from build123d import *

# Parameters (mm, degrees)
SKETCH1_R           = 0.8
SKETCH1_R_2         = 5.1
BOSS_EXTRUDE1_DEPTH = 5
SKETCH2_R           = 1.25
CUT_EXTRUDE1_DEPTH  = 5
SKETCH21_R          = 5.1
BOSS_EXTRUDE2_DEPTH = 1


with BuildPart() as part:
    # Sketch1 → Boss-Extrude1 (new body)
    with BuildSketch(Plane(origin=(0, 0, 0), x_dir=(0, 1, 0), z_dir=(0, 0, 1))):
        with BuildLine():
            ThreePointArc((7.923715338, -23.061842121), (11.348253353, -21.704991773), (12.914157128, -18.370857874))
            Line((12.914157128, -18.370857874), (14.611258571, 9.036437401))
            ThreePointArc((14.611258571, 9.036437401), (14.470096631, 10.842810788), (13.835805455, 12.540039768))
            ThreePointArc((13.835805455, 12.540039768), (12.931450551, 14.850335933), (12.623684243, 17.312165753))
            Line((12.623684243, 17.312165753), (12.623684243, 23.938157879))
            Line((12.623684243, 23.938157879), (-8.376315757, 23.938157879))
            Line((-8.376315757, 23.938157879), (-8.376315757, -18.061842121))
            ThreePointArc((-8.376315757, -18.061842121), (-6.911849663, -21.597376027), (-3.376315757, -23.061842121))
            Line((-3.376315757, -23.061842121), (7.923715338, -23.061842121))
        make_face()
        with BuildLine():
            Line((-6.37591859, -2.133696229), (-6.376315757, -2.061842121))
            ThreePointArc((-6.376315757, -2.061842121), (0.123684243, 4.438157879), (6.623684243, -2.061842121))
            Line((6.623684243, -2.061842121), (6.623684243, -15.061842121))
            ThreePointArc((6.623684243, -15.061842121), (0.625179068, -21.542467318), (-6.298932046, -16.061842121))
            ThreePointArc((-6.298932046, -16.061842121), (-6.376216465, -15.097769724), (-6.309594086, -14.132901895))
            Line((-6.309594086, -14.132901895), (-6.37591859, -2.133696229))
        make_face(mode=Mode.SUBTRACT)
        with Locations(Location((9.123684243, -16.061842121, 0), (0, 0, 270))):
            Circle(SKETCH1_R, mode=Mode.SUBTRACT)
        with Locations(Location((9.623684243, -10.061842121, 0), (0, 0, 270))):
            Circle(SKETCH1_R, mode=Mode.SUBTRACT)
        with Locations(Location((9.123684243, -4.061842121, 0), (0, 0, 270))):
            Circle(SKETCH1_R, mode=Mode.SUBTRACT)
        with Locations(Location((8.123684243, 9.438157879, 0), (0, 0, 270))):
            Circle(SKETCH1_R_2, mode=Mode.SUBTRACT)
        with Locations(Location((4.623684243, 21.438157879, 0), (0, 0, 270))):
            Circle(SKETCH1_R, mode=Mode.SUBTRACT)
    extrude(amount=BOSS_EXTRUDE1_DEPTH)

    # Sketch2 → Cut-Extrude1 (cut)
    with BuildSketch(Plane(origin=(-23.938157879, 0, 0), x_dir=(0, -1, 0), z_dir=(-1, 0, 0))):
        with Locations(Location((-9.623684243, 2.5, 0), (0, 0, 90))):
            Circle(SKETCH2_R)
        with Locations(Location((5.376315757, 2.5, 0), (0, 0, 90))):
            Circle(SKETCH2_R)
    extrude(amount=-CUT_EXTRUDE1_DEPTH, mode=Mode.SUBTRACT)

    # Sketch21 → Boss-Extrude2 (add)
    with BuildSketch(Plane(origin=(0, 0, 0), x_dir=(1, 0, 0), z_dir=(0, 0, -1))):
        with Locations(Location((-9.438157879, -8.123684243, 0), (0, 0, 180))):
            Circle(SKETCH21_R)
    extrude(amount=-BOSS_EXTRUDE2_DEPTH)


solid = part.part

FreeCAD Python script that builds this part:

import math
import FreeCAD as App
import Part
import Sketcher

V = App.Vector

doc = App.newDocument("Part")
params = doc.addObject("Spreadsheet::Sheet", "Params")
for row, (alias, value) in enumerate([
    ("sketch1_radius", "5 mm"),
    ("sketch1_radius2", "10 mm"),
    ("sketch1_diameter", "1.6 mm"),
    ("sketch1_diameter2", "10.2 mm"),
    ("sketch1_radius3", "6.5 mm"),
    ("pad1_length", "5 mm"),
    ("sketch2_diameter", "2.5 mm"),
    ("pocket1_length", "5 mm"),
    ("sketch3_diameter", "10.2 mm"),
    ("pad2_length", "1 mm"),
], start=1):
    params.set(f"A{row}", alias)
    params.set(f"B{row}", "=" + value)
    params.setAlias(f"B{row}", alias)

body = doc.addObject("PartDesign::Body", "Body")

# Sketch on XY plane
sketch1 = doc.addObject("Sketcher::SketchObject", "Sketch")
body.addObject(sketch1)
sketch1.AttachmentSupport = (doc.XY_Plane, [""])
sketch1.MapMode = "FlatFace"
sketch1.addGeometry([
    Part.ArcOfCircle(Part.Circle(V(18.061842, 7.923715, 0), V(0, 0, 1), 5), math.radians(0), math.radians(86.456682)),  # 0
    Part.LineSegment(V(18.370858, 12.914157, 0), V(-9.036437, 14.611259, 0)),  # 1
    Part.ArcOfCircle(Part.Circle(V(-9.438158, 8.123684, 0), V(0, 0, 1), 6.5), math.radians(86.456682), math.radians(118.50351)),  # 2
    Part.ArcOfCircle(Part.Circle(V(-17.312166, 22.623684, 0), V(0, 0, 1), 10), math.radians(-90), math.radians(-61.49649)),  # 3
    Part.LineSegment(V(-17.312166, 12.623684, 0), V(-23.938158, 12.623684, 0)),  # 4
    Part.LineSegment(V(-23.938158, 12.623684, 0), V(-23.938158, -8.376316, 0)),  # 5
    Part.LineSegment(V(-23.938158, -8.376316, 0), V(18.061842, -8.376316, 0)),  # 6
    Part.ArcOfCircle(Part.Circle(V(18.061842, -3.376316, 0), V(0, 0, 1), 5), math.radians(-90), math.radians(0)),  # 7
    Part.LineSegment(V(23.061842, -3.376316, 0), V(23.061842, 7.923715, 0)),  # 8
    Part.LineSegment(V(14.132902, -6.309594, 0), V(2.133696, -6.375919, 0)),  # 9
    Part.LineSegment(V(2.133696, -6.375919, 0), V(2.061842, -6.376316, 0)),  # 10
    Part.ArcOfCircle(Part.Circle(V(2.061842, 0.123684, 0), V(0, 0, 1), 6.5), math.radians(90), math.radians(270)),  # 11
    Part.LineSegment(V(2.061842, 6.623684, 0), V(15.061842, 6.623684, 0)),  # 12
    Part.ArcOfCircle(Part.Circle(V(15.061842, 0.123684, 0), V(0, 0, 1), 6.5), math.radians(-81.150117), math.radians(90)),  # 13
    Part.ArcOfCircle(Part.Circle(V(15.061842, 0.123684, 0), V(0, 0, 1), 6.5), math.radians(-98.216495), math.radians(-81.150117)),  # 14
    Part.Circle(V(16.061842, 9.123684, 0), V(0, 0, 1), 0.8),  # 15
    Part.Circle(V(10.061842, 9.623684, 0), V(0, 0, 1), 0.8),  # 16
    Part.Circle(V(4.061842, 9.123684, 0), V(0, 0, 1), 0.8),  # 17
    Part.Circle(V(-9.438158, 8.123684, 0), V(0, 0, 1), 5.1),  # 18
    Part.Circle(V(-21.438158, 4.623684, 0), V(0, 0, 1), 0.8),  # 19
], False)
sketch1.addConstraint([
    Sketcher.Constraint("Tangent", 0, 2, 1, 1),
    Sketcher.Constraint("Tangent", 1, 2, 2, 1),
    Sketcher.Constraint("Tangent", 2, 2, 3, 2),
    Sketcher.Constraint("Tangent", 3, 1, 4, 1),
    Sketcher.Constraint("Coincident", 4, 2, 5, 1),
    Sketcher.Constraint("Coincident", 5, 2, 6, 1),
    Sketcher.Constraint("Tangent", 6, 2, 7, 1),
    Sketcher.Constraint("Tangent", 7, 2, 8, 1),
    Sketcher.Constraint("Tangent", 8, 2, 0, 1),
    Sketcher.Constraint("Coincident", 9, 2, 10, 1),
    Sketcher.Constraint("Coincident", 10, 2, 11, 2),
    Sketcher.Constraint("Tangent", 11, 1, 12, 1),
    Sketcher.Constraint("Tangent", 12, 2, 13, 2),
    Sketcher.Constraint("Tangent", 13, 1, 14, 2),
    Sketcher.Constraint("Coincident", 14, 1, 9, 1),
    Sketcher.Constraint("Horizontal", 4),
    Sketcher.Constraint("Vertical", 5),
    Sketcher.Constraint("Horizontal", 6),
    Sketcher.Constraint("Vertical", 8),
    Sketcher.Constraint("Horizontal", 12),
    Sketcher.Constraint("Coincident", 18, 3, 2, 3),
    Sketcher.Constraint("Equal", 0, 7),
    Sketcher.Constraint("Equal", 2, 11),
    Sketcher.Constraint("Equal", 11, 13),
    Sketcher.Constraint("Equal", 13, 14),
    Sketcher.Constraint("Equal", 15, 16),
    Sketcher.Constraint("Equal", 16, 17),
    Sketcher.Constraint("Equal", 17, 19),
    Sketcher.Constraint("Parallel", 9, 10),
    Sketcher.Constraint("Horizontal", 15, 3, 17, 3),
    Sketcher.Constraint("Vertical", 11, 3, 10, 2),
    Sketcher.Constraint("Vertical", 15, 3, 13, 1),
    Sketcher.Constraint("Radius", 0, 5.0),
    Sketcher.Constraint("Radius", 3, 10.0),
    Sketcher.Constraint("Diameter", 15, 1.6),
    Sketcher.Constraint("Diameter", 18, 10.2),
    Sketcher.Constraint("Radius", 2, 6.5),
    Sketcher.Constraint("DistanceX", 6, 1, 6, 2, 42.0),
    Sketcher.Constraint("DistanceX", 12, 1, 12, 2, 13.0),
    Sketcher.Constraint("DistanceY", 5, 2, 5, 1, 21.0),
    Sketcher.Constraint("DistanceY", 11, 3, 2, 3, 8.0),
    Sketcher.Constraint("DistanceX", 11, 3, 7, 3, 16.0),
    Sketcher.Constraint("DistanceX", 15, 3, 0, 3, 2.0),
    Sketcher.Constraint("DistanceY", 13, 3, 15, 3, 9.0),
    Sketcher.Constraint("DistanceX", 16, 3, 15, 3, 6.0),
    Sketcher.Constraint("DistanceX", 17, 3, 16, 3, 6.0),
    Sketcher.Constraint("DistanceX", 19, 3, 18, 3, 12.0),
    Sketcher.Constraint("DistanceY", 19, 3, 3, 3, 18.0),
    Sketcher.Constraint("DistanceY", 11, 1, 16, 3, 3.0),
    Sketcher.Constraint("DistanceX", 2, 3, 0, 3, 27.5),
    Sketcher.Constraint("DistanceY", 2, 3, 3, 3, 14.5),
    Sketcher.Constraint("DistanceY", 8, 1, 8, 2, 11.300031),
    Sketcher.Constraint("DistanceX", -1, 1, 14, 1, 14.132902),
    Sketcher.Constraint("Distance", 9, 11.999389),
    Sketcher.Constraint("DistanceY", -1, 1, 1, 2, 14.611259),
    Sketcher.Constraint("DistanceX", 2, 2, -1, 1, 12.54004),
])
sketch1.setExpression("Constraints[32]", "Params.sketch1_radius")
sketch1.setExpression("Constraints[33]", "Params.sketch1_radius2")
sketch1.setExpression("Constraints[34]", "Params.sketch1_diameter")
sketch1.setExpression("Constraints[35]", "Params.sketch1_diameter2")
sketch1.setExpression("Constraints[36]", "Params.sketch1_radius3")
pad1 = doc.addObject("PartDesign::Pad", "Pad")
body.addObject(pad1)
pad1.Profile = sketch1
pad1.setExpression("Length", "Params.pad1_length")

# Sketch on YZ plane
sketch2 = doc.addObject("Sketcher::SketchObject", "Sketch001")
body.addObject(sketch2)
sketch2.AttachmentSupport = (doc.YZ_Plane, [""])
sketch2.MapMode = "FlatFace"
sketch2.AttachmentOffset = App.Placement(V(0, 0, -23.938158), App.Rotation())
sketch2.addGeometry([
    Part.Circle(V(9.623684, 2.5, 0), V(0, 0, 1), 1.25),
    Part.Circle(V(-5.376316, 2.5, 0), V(0, 0, 1), 1.25),
], False)
sketch2.addConstraint([
    Sketcher.Constraint("Equal", 0, 1),
    Sketcher.Constraint("Horizontal", 0, 3, 1, 3),
    Sketcher.Constraint("Diameter", 0, 2.5),
    Sketcher.Constraint("DistanceX", 1, 3, 0, 3, 15.0),
    Sketcher.Constraint("DistanceY", -1, 1, 0, 3, 2.5),
    Sketcher.Constraint("DistanceX", -1, 1, 0, 3, 9.623684),
])
sketch2.setExpression("Constraints[2]", "Params.sketch2_diameter")
pocket1 = doc.addObject("PartDesign::Pocket", "Pocket")
body.addObject(pocket1)
pocket1.Profile = sketch2
pocket1.setExpression("Length", "Params.pocket1_length")
pocket1.Reversed = True

# Sketch on XY plane
sketch3 = doc.addObject("Sketcher::SketchObject", "Sketch002")
body.addObject(sketch3)
sketch3.AttachmentSupport = (doc.XY_Plane, [""])
sketch3.MapMode = "FlatFace"
sketch3.addGeometry(Part.Circle(V(-9.438158, 8.123684, 0), V(0, 0, 1), 5.1), False)
sketch3.addConstraint([
    Sketcher.Constraint("Diameter", 0, 10.2),
    Sketcher.Constraint("DistanceX", 0, 3, -1, 1, 9.438158),
    Sketcher.Constraint("DistanceY", -1, 1, 0, 3, 8.123684),
])
sketch3.setExpression("Constraints[0]", "Params.sketch3_diameter")
pad2 = doc.addObject("PartDesign::Pad", "Pad001")
body.addObject(pad2)
pad2.Profile = sketch3
pad2.setExpression("Length", "Params.pad2_length")

doc.recompute()
